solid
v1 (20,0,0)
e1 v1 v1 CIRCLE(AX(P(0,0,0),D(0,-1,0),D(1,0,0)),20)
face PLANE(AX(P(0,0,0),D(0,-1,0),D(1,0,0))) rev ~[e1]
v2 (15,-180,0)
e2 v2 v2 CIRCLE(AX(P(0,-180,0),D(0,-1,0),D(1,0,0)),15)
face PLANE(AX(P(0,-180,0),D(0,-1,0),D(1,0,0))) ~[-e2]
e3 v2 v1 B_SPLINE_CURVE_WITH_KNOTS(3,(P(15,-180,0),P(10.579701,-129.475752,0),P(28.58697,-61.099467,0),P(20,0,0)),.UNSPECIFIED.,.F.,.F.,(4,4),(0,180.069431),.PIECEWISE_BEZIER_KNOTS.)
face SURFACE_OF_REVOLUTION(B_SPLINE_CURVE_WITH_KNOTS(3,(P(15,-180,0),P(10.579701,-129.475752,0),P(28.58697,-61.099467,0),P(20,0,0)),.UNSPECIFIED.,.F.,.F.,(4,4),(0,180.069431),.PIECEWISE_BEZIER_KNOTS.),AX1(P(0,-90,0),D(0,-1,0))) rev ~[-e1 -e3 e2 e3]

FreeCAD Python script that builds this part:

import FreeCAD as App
import Part
import Sketcher

V = App.Vector

doc = App.newDocument("Part")
body = doc.addObject("PartDesign::Body", "Body")

# Sketch on XY plane
sketch1 = body.newObject("Sketcher::SketchObject", "Sketch")
sketch1.AttachmentSupport = (doc.getObject("XY_Plane"), [""])
sketch1.MapMode = "FlatFace"
sketch1.addGeometry(Part.LineSegment(V(20, 0, 0), V(0, 0, 0)), False)
sketch1.addGeometry(Part.LineSegment(V(0, 0, 0), V(0, -180, 0)), False)
sketch1.addGeometry(Part.LineSegment(V(0, -180, 0), V(15, -180, 0)), False)
sketch1.addGeometry(Part.BSplineCurve([V(15, -180, 0), V(10.579701, -129.475752, 0), V(28.58697, -61.099467, 0), V(20, 0, 0)], [4, 4], [0, 180.069431], False, 3, [1, 1, 1, 1], False), False)
sketch1.addConstraint(Sketcher.Constraint("Block", 3))
sketch1.addConstraint(Sketcher.Constraint("Coincident", 0, 2, 1, 1))
sketch1.addConstraint(Sketcher.Constraint("Coincident", 1, 2, 2, 1))
sketch1.addConstraint(Sketcher.Constraint("Coincident", 2, 2, 3, 1))
sketch1.addConstraint(Sketcher.Constraint("Coincident", 3, 2, 0, 1))
sketch1.addConstraint(Sketcher.Constraint("Horizontal", 0))
sketch1.addConstraint(Sketcher.Constraint("Vertical", 1))
sketch1.addConstraint(Sketcher.Constraint("Horizontal", 2))
sketch1.addConstraint(Sketcher.Constraint("PointOnObject", 1, 2, -2))
revolution = body.newObject("PartDesign::Revolution", "Revolution")
revolution.Profile = sketch1
revolution.ReferenceAxis = (sketch1, ["V_Axis"])
revolution.Angle = 360

doc.recompute()
